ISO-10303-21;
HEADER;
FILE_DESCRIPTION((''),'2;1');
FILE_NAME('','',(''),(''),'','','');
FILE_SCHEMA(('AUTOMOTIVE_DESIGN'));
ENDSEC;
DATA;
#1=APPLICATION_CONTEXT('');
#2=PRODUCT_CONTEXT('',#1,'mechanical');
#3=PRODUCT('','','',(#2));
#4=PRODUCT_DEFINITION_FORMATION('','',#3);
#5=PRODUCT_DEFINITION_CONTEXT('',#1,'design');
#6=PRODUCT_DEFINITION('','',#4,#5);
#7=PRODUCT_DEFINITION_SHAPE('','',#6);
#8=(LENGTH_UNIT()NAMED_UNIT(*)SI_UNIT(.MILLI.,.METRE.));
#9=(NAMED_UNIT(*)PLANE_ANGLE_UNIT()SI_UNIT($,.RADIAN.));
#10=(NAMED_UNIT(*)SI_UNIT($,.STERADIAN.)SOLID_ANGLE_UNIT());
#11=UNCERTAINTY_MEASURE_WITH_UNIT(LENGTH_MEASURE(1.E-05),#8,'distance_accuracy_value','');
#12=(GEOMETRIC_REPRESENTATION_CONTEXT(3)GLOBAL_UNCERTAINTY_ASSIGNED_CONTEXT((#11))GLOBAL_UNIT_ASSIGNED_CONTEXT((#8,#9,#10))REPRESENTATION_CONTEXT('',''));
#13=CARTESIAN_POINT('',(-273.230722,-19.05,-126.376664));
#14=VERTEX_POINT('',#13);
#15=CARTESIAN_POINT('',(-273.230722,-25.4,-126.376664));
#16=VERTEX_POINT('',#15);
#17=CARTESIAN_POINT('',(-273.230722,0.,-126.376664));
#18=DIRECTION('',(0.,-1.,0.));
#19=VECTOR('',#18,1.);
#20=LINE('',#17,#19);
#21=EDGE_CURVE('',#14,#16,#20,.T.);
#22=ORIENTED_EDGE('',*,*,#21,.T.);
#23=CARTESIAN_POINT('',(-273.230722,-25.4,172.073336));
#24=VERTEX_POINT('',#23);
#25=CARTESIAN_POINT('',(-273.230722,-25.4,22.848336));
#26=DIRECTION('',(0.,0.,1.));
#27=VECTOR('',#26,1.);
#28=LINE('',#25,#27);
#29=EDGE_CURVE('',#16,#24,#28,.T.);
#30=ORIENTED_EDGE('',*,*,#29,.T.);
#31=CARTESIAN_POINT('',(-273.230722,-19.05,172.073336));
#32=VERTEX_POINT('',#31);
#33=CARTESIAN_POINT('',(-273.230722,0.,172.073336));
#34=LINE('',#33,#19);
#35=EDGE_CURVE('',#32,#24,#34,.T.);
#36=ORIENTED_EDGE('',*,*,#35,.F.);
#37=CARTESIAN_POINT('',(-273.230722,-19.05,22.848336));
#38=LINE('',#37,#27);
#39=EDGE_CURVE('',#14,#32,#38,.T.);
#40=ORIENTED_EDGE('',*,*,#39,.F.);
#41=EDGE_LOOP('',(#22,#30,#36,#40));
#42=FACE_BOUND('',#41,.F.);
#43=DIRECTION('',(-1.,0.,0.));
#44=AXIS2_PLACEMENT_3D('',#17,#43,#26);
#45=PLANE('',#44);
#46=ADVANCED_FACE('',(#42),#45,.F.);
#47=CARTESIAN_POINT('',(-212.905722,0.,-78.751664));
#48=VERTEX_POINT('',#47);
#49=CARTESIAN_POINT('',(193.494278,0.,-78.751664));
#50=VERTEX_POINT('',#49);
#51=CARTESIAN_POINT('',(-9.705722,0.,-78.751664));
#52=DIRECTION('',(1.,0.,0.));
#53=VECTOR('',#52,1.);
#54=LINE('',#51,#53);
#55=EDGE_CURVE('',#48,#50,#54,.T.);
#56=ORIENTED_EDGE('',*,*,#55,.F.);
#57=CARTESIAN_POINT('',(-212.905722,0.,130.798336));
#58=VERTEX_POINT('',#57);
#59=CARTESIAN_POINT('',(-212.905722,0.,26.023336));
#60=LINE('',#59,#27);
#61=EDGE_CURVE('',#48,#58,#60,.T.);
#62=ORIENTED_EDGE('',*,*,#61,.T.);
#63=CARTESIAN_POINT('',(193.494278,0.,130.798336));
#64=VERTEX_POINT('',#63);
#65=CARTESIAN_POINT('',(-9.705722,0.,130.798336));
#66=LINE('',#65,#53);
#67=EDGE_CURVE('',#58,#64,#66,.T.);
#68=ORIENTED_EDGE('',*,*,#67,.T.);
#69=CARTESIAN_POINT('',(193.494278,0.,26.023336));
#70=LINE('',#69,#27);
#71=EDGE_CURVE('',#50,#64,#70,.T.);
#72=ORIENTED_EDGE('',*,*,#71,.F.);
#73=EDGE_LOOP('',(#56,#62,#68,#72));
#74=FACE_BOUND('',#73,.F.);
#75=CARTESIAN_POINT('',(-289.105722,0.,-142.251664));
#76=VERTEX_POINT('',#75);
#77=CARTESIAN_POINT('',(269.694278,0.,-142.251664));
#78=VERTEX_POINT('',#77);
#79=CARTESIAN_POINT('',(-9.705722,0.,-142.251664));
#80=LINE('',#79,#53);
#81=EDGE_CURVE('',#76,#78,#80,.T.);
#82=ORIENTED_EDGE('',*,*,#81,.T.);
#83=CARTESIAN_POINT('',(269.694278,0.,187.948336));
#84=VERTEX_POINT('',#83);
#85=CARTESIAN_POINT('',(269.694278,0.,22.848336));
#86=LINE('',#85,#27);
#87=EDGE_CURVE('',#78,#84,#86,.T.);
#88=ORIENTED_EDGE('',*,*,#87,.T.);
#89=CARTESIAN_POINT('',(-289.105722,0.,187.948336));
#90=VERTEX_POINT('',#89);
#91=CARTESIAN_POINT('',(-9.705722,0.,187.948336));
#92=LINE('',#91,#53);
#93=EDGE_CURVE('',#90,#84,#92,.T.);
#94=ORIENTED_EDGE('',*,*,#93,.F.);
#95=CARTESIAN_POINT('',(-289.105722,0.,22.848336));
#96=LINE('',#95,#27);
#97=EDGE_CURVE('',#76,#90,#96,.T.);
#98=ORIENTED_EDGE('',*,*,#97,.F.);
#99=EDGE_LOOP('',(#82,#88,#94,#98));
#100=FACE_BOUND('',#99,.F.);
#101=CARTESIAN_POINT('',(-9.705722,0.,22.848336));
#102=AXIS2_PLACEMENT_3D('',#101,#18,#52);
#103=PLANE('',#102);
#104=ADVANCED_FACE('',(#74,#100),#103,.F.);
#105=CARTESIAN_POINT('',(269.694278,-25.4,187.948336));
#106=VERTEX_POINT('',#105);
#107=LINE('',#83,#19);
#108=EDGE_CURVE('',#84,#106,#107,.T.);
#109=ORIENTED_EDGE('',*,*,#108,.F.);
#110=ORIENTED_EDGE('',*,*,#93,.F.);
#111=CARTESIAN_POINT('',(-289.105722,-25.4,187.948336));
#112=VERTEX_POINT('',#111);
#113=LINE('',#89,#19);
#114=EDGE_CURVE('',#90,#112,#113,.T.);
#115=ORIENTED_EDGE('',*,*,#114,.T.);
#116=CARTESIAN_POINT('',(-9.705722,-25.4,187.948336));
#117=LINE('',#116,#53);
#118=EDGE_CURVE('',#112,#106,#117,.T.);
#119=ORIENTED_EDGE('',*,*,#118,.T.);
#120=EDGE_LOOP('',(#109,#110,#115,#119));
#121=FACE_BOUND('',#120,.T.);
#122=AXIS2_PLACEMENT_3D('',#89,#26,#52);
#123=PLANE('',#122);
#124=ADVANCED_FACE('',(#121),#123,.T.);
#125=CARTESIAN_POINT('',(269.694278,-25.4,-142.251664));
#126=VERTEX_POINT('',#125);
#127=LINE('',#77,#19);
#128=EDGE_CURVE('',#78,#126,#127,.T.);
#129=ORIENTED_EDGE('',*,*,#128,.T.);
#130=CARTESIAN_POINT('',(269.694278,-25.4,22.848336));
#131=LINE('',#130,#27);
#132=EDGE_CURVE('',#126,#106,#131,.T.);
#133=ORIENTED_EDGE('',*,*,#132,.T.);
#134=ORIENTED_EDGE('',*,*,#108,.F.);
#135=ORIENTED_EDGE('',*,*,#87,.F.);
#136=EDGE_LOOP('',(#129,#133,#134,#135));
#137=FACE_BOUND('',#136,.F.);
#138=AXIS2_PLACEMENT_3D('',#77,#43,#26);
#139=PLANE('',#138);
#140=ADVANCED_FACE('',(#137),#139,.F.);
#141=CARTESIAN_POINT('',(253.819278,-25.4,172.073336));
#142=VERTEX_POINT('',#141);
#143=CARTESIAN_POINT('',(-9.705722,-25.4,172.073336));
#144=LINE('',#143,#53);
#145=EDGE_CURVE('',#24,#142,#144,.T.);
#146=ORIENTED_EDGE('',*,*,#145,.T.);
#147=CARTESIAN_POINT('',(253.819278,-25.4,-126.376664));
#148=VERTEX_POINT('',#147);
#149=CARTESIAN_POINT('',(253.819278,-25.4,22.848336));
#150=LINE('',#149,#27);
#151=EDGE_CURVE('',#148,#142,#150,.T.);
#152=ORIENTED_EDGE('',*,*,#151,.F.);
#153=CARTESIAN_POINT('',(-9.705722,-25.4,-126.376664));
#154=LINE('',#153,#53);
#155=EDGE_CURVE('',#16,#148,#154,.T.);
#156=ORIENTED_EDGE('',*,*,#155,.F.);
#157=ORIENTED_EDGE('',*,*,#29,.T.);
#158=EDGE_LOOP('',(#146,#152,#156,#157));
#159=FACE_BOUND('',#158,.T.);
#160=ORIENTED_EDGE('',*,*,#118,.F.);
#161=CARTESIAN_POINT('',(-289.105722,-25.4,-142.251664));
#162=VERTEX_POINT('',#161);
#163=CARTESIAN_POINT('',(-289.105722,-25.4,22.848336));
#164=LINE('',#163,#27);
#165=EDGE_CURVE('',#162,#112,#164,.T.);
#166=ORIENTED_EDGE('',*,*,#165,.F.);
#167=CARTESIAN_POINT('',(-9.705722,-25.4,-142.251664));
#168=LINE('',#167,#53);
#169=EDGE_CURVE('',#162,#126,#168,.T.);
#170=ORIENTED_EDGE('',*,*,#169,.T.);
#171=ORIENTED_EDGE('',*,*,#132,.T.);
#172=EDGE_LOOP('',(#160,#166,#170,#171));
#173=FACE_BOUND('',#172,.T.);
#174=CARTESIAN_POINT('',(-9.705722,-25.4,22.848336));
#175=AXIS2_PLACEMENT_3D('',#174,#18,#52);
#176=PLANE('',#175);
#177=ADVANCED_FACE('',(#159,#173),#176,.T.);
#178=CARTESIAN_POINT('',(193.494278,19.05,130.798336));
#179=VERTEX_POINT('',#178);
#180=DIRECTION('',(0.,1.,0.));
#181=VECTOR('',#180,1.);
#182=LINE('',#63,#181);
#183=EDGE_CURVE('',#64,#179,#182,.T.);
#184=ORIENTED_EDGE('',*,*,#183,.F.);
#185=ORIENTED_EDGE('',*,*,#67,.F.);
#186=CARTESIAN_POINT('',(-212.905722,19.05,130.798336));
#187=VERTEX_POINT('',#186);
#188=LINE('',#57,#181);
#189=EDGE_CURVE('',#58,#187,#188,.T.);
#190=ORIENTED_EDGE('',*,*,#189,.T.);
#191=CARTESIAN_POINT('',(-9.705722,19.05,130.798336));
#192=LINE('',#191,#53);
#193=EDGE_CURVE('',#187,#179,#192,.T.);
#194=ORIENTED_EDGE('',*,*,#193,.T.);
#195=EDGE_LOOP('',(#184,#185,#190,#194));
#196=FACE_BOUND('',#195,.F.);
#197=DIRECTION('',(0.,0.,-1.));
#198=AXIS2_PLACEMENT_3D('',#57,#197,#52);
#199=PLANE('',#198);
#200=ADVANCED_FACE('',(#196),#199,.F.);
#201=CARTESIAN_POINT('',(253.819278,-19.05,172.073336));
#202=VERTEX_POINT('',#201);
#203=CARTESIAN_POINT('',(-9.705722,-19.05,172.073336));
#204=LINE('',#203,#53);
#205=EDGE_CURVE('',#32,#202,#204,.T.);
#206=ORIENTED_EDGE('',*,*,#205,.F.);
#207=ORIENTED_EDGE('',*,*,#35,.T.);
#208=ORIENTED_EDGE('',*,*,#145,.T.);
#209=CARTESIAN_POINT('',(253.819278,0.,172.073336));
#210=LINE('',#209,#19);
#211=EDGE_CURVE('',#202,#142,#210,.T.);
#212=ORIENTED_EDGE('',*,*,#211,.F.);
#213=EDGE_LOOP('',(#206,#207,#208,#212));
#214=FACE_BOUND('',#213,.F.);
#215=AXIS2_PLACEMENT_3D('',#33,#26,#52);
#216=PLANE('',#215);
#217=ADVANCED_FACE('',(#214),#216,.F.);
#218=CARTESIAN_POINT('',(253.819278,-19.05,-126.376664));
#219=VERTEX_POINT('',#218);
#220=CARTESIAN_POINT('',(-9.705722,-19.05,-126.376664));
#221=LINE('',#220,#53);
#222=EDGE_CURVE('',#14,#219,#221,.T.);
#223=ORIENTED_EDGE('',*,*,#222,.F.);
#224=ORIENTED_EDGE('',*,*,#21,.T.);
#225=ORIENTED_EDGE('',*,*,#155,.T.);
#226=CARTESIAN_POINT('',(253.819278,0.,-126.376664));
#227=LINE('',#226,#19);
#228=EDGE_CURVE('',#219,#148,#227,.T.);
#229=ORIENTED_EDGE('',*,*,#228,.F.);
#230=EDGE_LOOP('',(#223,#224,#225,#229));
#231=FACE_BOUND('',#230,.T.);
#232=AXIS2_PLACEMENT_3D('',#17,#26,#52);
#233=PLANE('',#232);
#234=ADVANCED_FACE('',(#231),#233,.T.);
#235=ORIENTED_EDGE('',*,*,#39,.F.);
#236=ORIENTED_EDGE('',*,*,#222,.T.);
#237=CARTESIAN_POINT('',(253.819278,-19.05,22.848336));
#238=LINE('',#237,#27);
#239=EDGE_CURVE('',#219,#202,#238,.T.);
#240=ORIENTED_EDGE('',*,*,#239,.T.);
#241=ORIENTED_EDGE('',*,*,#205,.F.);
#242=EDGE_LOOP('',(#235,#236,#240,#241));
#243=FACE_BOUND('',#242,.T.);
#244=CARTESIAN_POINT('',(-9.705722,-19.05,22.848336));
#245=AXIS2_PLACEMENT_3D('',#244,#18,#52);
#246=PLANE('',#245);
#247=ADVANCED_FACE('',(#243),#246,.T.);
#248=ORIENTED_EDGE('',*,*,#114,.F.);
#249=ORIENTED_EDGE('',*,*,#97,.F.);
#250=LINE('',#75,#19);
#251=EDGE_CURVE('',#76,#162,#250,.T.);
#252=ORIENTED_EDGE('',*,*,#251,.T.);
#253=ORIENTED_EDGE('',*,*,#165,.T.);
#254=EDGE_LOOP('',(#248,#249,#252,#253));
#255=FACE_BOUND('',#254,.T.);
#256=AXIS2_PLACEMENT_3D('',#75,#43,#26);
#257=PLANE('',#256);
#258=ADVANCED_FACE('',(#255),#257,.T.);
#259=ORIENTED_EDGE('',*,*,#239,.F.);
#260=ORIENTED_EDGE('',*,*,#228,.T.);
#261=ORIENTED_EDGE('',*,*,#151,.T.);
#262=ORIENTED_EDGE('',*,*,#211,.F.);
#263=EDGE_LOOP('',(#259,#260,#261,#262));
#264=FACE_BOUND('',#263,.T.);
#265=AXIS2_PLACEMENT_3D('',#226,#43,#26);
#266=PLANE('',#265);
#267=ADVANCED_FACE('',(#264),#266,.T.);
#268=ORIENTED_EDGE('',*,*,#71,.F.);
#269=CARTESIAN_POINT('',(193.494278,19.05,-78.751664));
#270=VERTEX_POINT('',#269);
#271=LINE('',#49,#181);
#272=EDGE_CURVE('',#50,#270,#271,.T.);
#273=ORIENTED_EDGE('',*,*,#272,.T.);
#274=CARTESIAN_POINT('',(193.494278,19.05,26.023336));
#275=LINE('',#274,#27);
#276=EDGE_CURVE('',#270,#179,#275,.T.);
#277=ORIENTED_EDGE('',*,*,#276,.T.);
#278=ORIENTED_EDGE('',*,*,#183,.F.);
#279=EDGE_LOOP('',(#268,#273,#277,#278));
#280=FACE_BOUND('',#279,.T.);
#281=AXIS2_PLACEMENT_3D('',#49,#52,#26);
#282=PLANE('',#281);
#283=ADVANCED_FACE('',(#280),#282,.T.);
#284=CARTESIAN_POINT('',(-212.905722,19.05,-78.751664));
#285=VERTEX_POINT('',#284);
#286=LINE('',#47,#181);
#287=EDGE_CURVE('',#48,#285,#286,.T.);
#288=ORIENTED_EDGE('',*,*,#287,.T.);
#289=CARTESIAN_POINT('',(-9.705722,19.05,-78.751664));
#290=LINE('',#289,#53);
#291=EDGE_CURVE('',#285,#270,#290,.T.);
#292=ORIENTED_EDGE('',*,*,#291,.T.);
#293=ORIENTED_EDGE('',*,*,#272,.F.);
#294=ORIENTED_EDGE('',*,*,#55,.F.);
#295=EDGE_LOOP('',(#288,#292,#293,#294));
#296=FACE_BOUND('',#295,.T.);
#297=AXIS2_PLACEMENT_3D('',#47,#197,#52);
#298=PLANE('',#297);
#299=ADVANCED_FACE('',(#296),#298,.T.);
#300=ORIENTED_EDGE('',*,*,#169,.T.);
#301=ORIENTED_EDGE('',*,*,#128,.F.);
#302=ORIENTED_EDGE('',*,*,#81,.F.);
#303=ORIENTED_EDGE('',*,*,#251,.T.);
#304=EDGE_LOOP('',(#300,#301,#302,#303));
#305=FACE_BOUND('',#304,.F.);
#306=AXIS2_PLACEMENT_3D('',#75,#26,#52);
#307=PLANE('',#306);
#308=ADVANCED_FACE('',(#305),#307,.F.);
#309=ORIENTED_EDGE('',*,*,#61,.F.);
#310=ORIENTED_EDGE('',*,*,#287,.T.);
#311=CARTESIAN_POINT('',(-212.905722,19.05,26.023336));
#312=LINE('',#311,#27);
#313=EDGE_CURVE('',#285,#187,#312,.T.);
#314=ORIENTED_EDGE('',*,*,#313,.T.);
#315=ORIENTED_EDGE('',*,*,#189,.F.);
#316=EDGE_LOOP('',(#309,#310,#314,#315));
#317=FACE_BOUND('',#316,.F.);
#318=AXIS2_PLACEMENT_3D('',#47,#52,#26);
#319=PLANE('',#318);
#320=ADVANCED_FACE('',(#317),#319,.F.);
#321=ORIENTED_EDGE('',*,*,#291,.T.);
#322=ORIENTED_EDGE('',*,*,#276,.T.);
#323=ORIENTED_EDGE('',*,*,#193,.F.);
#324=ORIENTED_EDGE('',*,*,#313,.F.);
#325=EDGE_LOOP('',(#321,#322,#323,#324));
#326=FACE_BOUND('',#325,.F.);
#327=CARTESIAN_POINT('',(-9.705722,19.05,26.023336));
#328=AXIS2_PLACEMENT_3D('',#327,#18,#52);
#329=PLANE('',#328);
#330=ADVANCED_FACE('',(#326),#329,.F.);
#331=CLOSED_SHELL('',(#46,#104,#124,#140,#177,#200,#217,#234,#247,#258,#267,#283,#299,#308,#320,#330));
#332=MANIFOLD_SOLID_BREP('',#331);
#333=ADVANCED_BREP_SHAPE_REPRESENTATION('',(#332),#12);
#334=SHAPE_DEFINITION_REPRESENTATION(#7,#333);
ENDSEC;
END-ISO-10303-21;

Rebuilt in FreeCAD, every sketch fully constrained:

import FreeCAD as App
import Part
import Sketcher

V = App.Vector
Q = App.Units.Quantity

doc = App.newDocument("Part")
body = doc.addObject("PartDesign::Body", "Body")

# Sketch on XZ plane
sketch1 = body.newObject("Sketcher::SketchObject", "Sketch")
sketch1.AttachmentSupport = (doc.getObject("XZ_Plane"), [""])
sketch1.MapMode = "FlatFace"
sketch1.addGeometry(Part.LineSegment(V(-289, 188, 0), V(-289, -142, 0)), False)
sketch1.addGeometry(Part.LineSegment(V(-289, -142, 0), V(270, -142, 0)), False)
sketch1.addGeometry(Part.LineSegment(V(270, -142, 0), V(270, 188, 0)), False)
sketch1.addGeometry(Part.LineSegment(V(270, 188, 0), V(-289, 188, 0)), False)
sketch1.addGeometry(Part.LineSegment(V(254, -126, 0), V(-273, -126, 0)), False)
sketch1.addGeometry(Part.LineSegment(V(-273, -126, 0), V(-273, 172, 0)), False)
sketch1.addGeometry(Part.LineSegment(V(-273, 172, 0), V(254, 172, 0)), False)
sketch1.addGeometry(Part.LineSegment(V(254, 172, 0), V(254, -126, 0)), False)
sketch1.addConstraint(Sketcher.Constraint("Coincident", 0, 2, 1, 1))
sketch1.addConstraint(Sketcher.Constraint("Coincident", 1, 2, 2, 1))
sketch1.addConstraint(Sketcher.Constraint("Coincident", 2, 2, 3, 1))
sketch1.addConstraint(Sketcher.Constraint("Coincident", 3, 2, 0, 1))
sketch1.addConstraint(Sketcher.Constraint("Coincident", 4, 2, 5, 1))
sketch1.addConstraint(Sketcher.Constraint("Coincident", 5, 2, 6, 1))
sketch1.addConstraint(Sketcher.Constraint("Coincident", 6, 2, 7, 1))
sketch1.addConstraint(Sketcher.Constraint("Coincident", 7, 2, 4, 1))
sketch1.addConstraint(Sketcher.Constraint("Vertical", 0))
sketch1.addConstraint(Sketcher.Constraint("Horizontal", 1))
sketch1.addConstraint(Sketcher.Constraint("Vertical", 2))
sketch1.addConstraint(Sketcher.Constraint("Horizontal", 3))
sketch1.addConstraint(Sketcher.Constraint("Horizontal", 4))
sketch1.addConstraint(Sketcher.Constraint("Vertical", 5))
sketch1.addConstraint(Sketcher.Constraint("Horizontal", 6))
sketch1.addConstraint(Sketcher.Constraint("Vertical", 7))
sketch1.addConstraint(Sketcher.Constraint("DistanceX", 1, 1, 1, 2, Q("22 in")))
sketch1.addConstraint(Sketcher.Constraint("DistanceY", 0, 2, 0, 1, Q("13 in")))
sketch1.addConstraint(Sketcher.Constraint("DistanceX", 4, 2, 4, 1, Q("20.75 in")))
sketch1.addConstraint(Sketcher.Constraint("DistanceY", 5, 1, 5, 2, Q("11.75 in")))
sketch1.addConstraint(Sketcher.Constraint("DistanceX", 0, 2, 4, 2, Q("0.625 in")))
sketch1.addConstraint(Sketcher.Constraint("DistanceY", 0, 2, 4, 2, Q("0.625 in")))
sketch1.addConstraint(Sketcher.Constraint("DistanceX", 0, 2, -1, 1, 289.105722))
sketch1.addConstraint(Sketcher.Constraint("DistanceY", 0, 2, -1, 1, 142.251664))
pad1 = body.newObject("PartDesign::Pad", "Pad")
pad1.Profile = sketch1
pad1.Length = Q("1 in")

# Sketch on XZ plane
sketch2 = body.newObject("Sketcher::SketchObject", "Sketch001")
sketch2.AttachmentSupport = (doc.getObject("XZ_Plane"), [""])
sketch2.MapMode = "FlatFace"
sketch2.addGeometry(Part.LineSegment(V(-273, 172, 0), V(-273, -126, 0)), False)
sketch2.addGeometry(Part.LineSegment(V(-273, -126, 0), V(254, -126, 0)), False)
sketch2.addGeometry(Part.LineSegment(V(254, -126, 0), V(254, 172, 0)), False)
sketch2.addGeometry(Part.LineSegment(V(254, 172, 0), V(-273, 172, 0)), False)
sketch2.addConstraint(Sketcher.Constraint("Coincident", 0, 2, 1, 1))
sketch2.addConstraint(Sketcher.Constraint("Coincident", 1, 2, 2, 1))
sketch2.addConstraint(Sketcher.Constraint("Coincident", 2, 2, 3, 1))
sketch2.addConstraint(Sketcher.Constraint("Coincident", 3, 2, 0, 1))
sketch2.addConstraint(Sketcher.Constraint("Vertical", 0))
sketch2.addConstraint(Sketcher.Constraint("Horizontal", 1))
sketch2.addConstraint(Sketcher.Constraint("Vertical", 2))
sketch2.addConstraint(Sketcher.Constraint("Horizontal", 3))
sketch2.addConstraint(Sketcher.Constraint("DistanceX", 1, 1, 1, 2, Q("20.75 in")))
sketch2.addConstraint(Sketcher.Constraint("DistanceY", 0, 2, 0, 1, Q("11.75 in")))
sketch2.addConstraint(Sketcher.Constraint("DistanceX", 0, 2, -1, 1, 273.230722))
sketch2.addConstraint(Sketcher.Constraint("DistanceY", 0, 2, -1, 1, 126.376664))
pad2 = body.newObject("PartDesign::Pad", "Pad001")
pad2.Profile = sketch2
pad2.Length = Q("0.75 in")

# Sketch on XZ plane
sketch3 = body.newObject("Sketcher::SketchObject", "Sketch002")
sketch3.AttachmentSupport = (doc.getObject("XZ_Plane"), [""])
sketch3.MapMode = "FlatFace"
sketch3.addGeometry(Part.LineSegment(V(-213, 131, 0), V(-213, -79, 0)), False)
sketch3.addGeometry(Part.LineSegment(V(-213, -79, 0), V(193, -79, 0)), False)
sketch3.addGeometry(Part.LineSegment(V(193, -79, 0), V(193, 131, 0)), False)
sketch3.addGeometry(Part.LineSegment(V(193, 131, 0), V(-213, 131, 0)), False)
sketch3.addConstraint(Sketcher.Constraint("Coincident", 0, 2, 1, 1))
sketch3.addConstraint(Sketcher.Constraint("Coincident", 1, 2, 2, 1))
sketch3.addConstraint(Sketcher.Constraint("Coincident", 2, 2, 3, 1))
sketch3.addConstraint(Sketcher.Constraint("Coincident", 3, 2, 0, 1))
sketch3.addConstraint(Sketcher.Constraint("Vertical", 0))
sketch3.addConstraint(Sketcher.Constraint("Horizontal", 1))
sketch3.addConstraint(Sketcher.Constraint("Vertical", 2))
sketch3.addConstraint(Sketcher.Constraint("Horizontal", 3))
sketch3.addConstraint(Sketcher.Constraint("DistanceX", 1, 1, 1, 2, Q("16 in")))
sketch3.addConstraint(Sketcher.Constraint("DistanceY", 0, 2, 0, 1, Q("8.25 in")))
sketch3.addConstraint(Sketcher.Constraint("DistanceX", 0, 2, -1, 1, 212.905722))
sketch3.addConstraint(Sketcher.Constraint("DistanceY", 0, 2, -1, 1, 78.751664))
pad3 = body.newObject("PartDesign::Pad", "Pad002")
pad3.Profile = sketch3
pad3.Length = Q("0.75 in")
pad3.Reversed = True

doc.recompute()
